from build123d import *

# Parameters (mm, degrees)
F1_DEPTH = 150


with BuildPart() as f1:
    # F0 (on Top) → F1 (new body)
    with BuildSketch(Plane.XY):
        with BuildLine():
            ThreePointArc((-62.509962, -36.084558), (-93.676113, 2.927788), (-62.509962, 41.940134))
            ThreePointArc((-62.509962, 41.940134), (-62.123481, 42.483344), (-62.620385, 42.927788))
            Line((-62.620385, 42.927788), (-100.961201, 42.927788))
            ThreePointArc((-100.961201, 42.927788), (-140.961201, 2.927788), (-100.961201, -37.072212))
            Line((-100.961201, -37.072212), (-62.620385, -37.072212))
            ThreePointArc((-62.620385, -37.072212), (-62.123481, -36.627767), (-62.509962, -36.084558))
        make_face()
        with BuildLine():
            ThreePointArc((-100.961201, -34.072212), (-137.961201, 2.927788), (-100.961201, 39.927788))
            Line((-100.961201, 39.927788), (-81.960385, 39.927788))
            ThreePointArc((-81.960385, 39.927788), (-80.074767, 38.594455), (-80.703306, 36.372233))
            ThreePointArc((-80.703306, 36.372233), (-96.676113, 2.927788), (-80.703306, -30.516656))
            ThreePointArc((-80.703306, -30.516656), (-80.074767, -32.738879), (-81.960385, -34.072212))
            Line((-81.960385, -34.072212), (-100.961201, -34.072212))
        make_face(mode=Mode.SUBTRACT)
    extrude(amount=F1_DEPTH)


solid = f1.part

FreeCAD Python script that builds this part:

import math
import FreeCAD as App
import Part
import Sketcher

V = App.Vector
Q = App.Units.Quantity

doc = App.newDocument("Part")
body = doc.addObject("PartDesign::Body", "Body")

# Sketch on XY plane
sketch1 = body.newObject("Sketcher::SketchObject", "Sketch")
sketch1.AttachmentSupport = (doc.getObject("XY_Plane"), [""])
sketch1.MapMode = "FlatFace"
sketch1.addGeometry(Part.ArcOfCircle(Part.Circle(V(-53.68, 2.93, 0), V(0, 0, 1), 40), math.radians(103), math.radians(257)), False)
sketch1.addGeometry(Part.ArcOfCircle(Part.Circle(V(-62.62, 42.43, 0), V(0, 0, 1), 0.5), math.radians(-77), math.radians(90)), False)
sketch1.addGeometry(Part.LineSegment(V(-62.62, 42.93, 0), V(-100.96, 42.93, 0)), False)
sketch1.addGeometry(Part.ArcOfCircle(Part.Circle(V(-100.96, 2.93, 0), V(0, 0, 1), 40), math.radians(90), math.radians(270)), False)
sketch1.addGeometry(Part.LineSegment(V(-100.96, -37.07, 0), V(-62.62, -37.07, 0)), False)
sketch1.addGeometry(Part.ArcOfCircle(Part.Circle(V(-62.62, -36.57, 0), V(0, 0, 1), 0.5), math.radians(-90), math.radians(77)), False)
sketch1.addGeometry(Part.LineSegment(V(-81.96, -34.07, 0), V(-100.96, -34.07, 0)), False)
sketch1.addGeometry(Part.ArcOfCircle(Part.Circle(V(-100.96, 2.93, 0), V(0, 0, 1), 37), math.radians(90), math.radians(270)), False)
sketch1.addGeometry(Part.LineSegment(V(-100.96, 39.93, 0), V(-81.96, 39.93, 0)), False)
sketch1.addGeometry(Part.ArcOfCircle(Part.Circle(V(-81.96, 37.93, 0), V(0, 0, 1), 2), math.radians(-51), math.radians(90)), False)
sketch1.addGeometry(Part.ArcOfCircle(Part.Circle(V(-53.68, 2.93, 0), V(0, 0, 1), 43), math.radians(129), math.radians(231)), False)
sketch1.addGeometry(Part.ArcOfCircle(Part.Circle(V(-81.96, -32.07, 0), V(0, 0, 1), 2), math.radians(-90), math.radians(51)), False)
sketch1.addConstraint(Sketcher.Constraint("Tangent", 0, 1, 1, 1))
sketch1.addConstraint(Sketcher.Constraint("Tangent", 1, 2, 2, 1))
sketch1.addConstraint(Sketcher.Constraint("Tangent", 2, 2, 3, 1))
sketch1.addConstraint(Sketcher.Constraint("Tangent", 3, 2, 4, 1))
sketch1.addConstraint(Sketcher.Constraint("Tangent", 4, 2, 5, 1))
sketch1.addConstraint(Sketcher.Constraint("Tangent", 5, 2, 0, 2))
sketch1.addConstraint(Sketcher.Constraint("Tangent", 6, 2, 7, 2))
sketch1.addConstraint(Sketcher.Constraint("Tangent", 7, 1, 8, 1))
sketch1.addConstraint(Sketcher.Constraint("Tangent", 8, 2, 9, 2))
sketch1.addConstraint(Sketcher.Constraint("Tangent", 9, 1, 10, 1))
sketch1.addConstraint(Sketcher.Constraint("Tangent", 10, 2, 11, 2))
sketch1.addConstraint(Sketcher.Constraint("Tangent", 11, 1, 6, 1))
sketch1.addConstraint(Sketcher.Constraint("Horizontal", 2))
sketch1.addConstraint(Sketcher.Constraint("Horizontal", 4))
sketch1.addConstraint(Sketcher.Constraint("Horizontal", 6))
sketch1.addConstraint(Sketcher.Constraint("Horizontal", 8))
sketch1.addConstraint(Sketcher.Constraint("Coincident", 7, 3, 3, 3))
sketch1.addConstraint(Sketcher.Constraint("Coincident", 10, 3, 0, 3))
sketch1.addConstraint(Sketcher.Constraint("Equal", 0, 3))
sketch1.addConstraint(Sketcher.Constraint("Equal", 1, 5))
sketch1.addConstraint(Sketcher.Constraint("Equal", 9, 11))
sketch1.addConstraint(Sketcher.Constraint("Horizontal", 0, 3, 3, 3))
sketch1.addConstraint(Sketcher.Constraint("Radius", 0, Q("40 mm")))
sketch1.addConstraint(Sketcher.Constraint("Radius", 7, Q("37 mm")))
sketch1.addConstraint(Sketcher.Constraint("Radius", 9, Q("2 mm")))
sketch1.addConstraint(Sketcher.Constraint("Radius", 10, Q("43.000001 mm")))
sketch1.addConstraint(Sketcher.Constraint("Radius", 1, Q("0.5 mm")))
sketch1.addConstraint(Sketcher.Constraint("DistanceX", 3, 3, -1, 1, Q("100.961201 mm")))
sketch1.addConstraint(Sketcher.Constraint("DistanceX", 2, 2, 2, 1, Q("38.340816 mm")))
sketch1.addConstraint(Sketcher.Constraint("DistanceY", -1, 1, 0, 3, Q("2.927788 mm")))
pad1 = body.newObject("PartDesign::Pad", "Pad")
pad1.Profile = sketch1
pad1.Length = 150

doc.recompute()
